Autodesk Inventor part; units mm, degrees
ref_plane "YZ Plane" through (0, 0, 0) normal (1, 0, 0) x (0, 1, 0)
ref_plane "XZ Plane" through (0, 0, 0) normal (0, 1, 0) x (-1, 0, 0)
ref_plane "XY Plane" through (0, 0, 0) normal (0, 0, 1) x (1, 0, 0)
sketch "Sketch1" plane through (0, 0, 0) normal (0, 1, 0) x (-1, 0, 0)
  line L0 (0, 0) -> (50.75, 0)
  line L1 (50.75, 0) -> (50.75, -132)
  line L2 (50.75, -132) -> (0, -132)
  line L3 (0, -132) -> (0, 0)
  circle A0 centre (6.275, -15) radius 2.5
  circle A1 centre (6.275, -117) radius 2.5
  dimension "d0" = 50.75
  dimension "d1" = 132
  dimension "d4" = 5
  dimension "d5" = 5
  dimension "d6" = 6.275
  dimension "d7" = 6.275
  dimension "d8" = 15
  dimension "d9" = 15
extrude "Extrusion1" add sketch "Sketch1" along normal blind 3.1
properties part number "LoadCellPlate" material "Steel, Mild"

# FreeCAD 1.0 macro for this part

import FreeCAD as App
import Part
import Sketcher
from FreeCAD import Vector

doc = App.newDocument("Part")
body = doc.addObject("PartDesign::Body", "Body")

sketch1 = body.newObject("Sketcher::SketchObject", "Sketch")
sketch1.AttachmentSupport = (doc.getObject("XZ_Plane"), [""])
sketch1.MapMode = "FlatFace"
sketch1.addGeometry([
    Part.LineSegment(Vector(-50.8, 0, 0), Vector(0, 0, 0)),
    Part.LineSegment(Vector(0, 0, 0), Vector(0, -132, 0)),
    Part.LineSegment(Vector(0, -132, 0), Vector(-50.8, -132, 0)),
    Part.LineSegment(Vector(-50.8, -132, 0), Vector(-50.8, 0, 0)),
    Part.Circle(Vector(-6.3, -117, 0), Vector(0, 0, 1), 2.5),
    Part.Circle(Vector(-6.3, -15, 0), Vector(0, 0, 1), 2.5),
], False)
sketch1.addConstraint([
    Sketcher.Constraint("Coincident", 0, 2, 1, 1),
    Sketcher.Constraint("Coincident", 1, 2, 2, 1),
    Sketcher.Constraint("Coincident", 2, 2, 3, 1),
    Sketcher.Constraint("Coincident", 3, 2, 0, 1),
    Sketcher.Constraint("Horizontal", 0),
    Sketcher.Constraint("Vertical", 1),
    Sketcher.Constraint("Horizontal", 2),
    Sketcher.Constraint("Vertical", 3),
    Sketcher.Constraint("Coincident", 0, 2, -1, 1),
    Sketcher.Constraint("Equal", 4, 5),
    Sketcher.Constraint("Vertical", 4, 3, 5, 3),
    Sketcher.Constraint("Diameter", 4, 5.0),
    Sketcher.Constraint("DistanceY", 1, 2, 1, 1, 132.0),
    Sketcher.Constraint("DistanceY", 5, 3, -1, 1, 15.0),
    Sketcher.Constraint("DistanceY", 1, 2, 4, 3, 15.0),
    Sketcher.Constraint("DistanceX", 0, 1, 0, 2, 50.75),
    Sketcher.Constraint("DistanceX", 4, 3, -1, 1, 6.275),
])
pad1 = body.newObject("PartDesign::Pad", "Pad")
pad1.Profile = sketch1
pad1.Length = 3.1
pad1.Reversed = True

doc.recompute()
